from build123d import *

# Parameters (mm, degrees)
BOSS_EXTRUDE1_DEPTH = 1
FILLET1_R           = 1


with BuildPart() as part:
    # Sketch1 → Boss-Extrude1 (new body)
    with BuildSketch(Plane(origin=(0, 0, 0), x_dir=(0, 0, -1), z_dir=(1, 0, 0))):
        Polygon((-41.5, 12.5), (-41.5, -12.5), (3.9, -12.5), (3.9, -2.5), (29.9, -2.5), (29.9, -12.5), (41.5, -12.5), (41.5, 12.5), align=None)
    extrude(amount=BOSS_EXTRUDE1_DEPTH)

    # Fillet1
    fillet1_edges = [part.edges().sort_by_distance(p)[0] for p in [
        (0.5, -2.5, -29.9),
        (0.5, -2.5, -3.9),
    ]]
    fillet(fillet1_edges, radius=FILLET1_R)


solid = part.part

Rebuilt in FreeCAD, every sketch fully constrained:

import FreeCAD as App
import Part
import Sketcher

V = App.Vector
Q = App.Units.Quantity


def edges_at(feature, points):
    """Names of the edges that pass closest to the given points."""
    edges = feature.Shape.Edges
    near = lambda p: min(range(len(edges)), key=lambda i: edges[i].distToShape(Part.Vertex(*p))[0])
    return sorted({f"Edge{near(p) + 1}" for p in points})


def add_polygon(sketch, points):
    """Adds a closed chain of lines whose ends are joined by coincident constraints."""
    first, n = sketch.GeometryCount, len(points)
    for a, b in zip(points, points[1:] + points[:1]):
        sketch.addGeometry(Part.LineSegment(App.Vector(*a, 0), App.Vector(*b, 0)), False)
    for i in range(n):
        sketch.addConstraint(Sketcher.Constraint("Coincident", first + i, 2, first + (i + 1) % n, 1))

doc = App.newDocument("Part")
body = doc.addObject("PartDesign::Body", "Body")

# Sketch on YZ plane
sketch1 = body.newObject("Sketcher::SketchObject", "Sketch")
sketch1.AttachmentSupport = (doc.getObject("YZ_Plane"), [""])
sketch1.MapMode = "FlatFace"
add_polygon(sketch1, [(12, 42), (-12, 42), (-12, -4), (-2, -4), (-2, -30), (-12, -30), (-12, -42), (12, -42)])  # lines 0-7
sketch1.addConstraint(Sketcher.Constraint("Horizontal", 0))
sketch1.addConstraint(Sketcher.Constraint("Vertical", 1))
sketch1.addConstraint(Sketcher.Constraint("Horizontal", 2))
sketch1.addConstraint(Sketcher.Constraint("Vertical", 3))
sketch1.addConstraint(Sketcher.Constraint("Horizontal", 4))
sketch1.addConstraint(Sketcher.Constraint("Vertical", 5))
sketch1.addConstraint(Sketcher.Constraint("Horizontal", 6))
sketch1.addConstraint(Sketcher.Constraint("Vertical", 7))
sketch1.addConstraint(Sketcher.Constraint("Symmetric", 0, 2, 6, 2, -1, 1))
sketch1.addConstraint(Sketcher.Constraint("Vertical", 1, 2, 4, 2))
sketch1.addConstraint(Sketcher.Constraint("DistanceX", 0, 2, 0, 1, Q("25 mm")))
sketch1.addConstraint(Sketcher.Constraint("DistanceX", 2, 1, 2, 2, Q("10 mm")))
sketch1.addConstraint(Sketcher.Constraint("DistanceY", 3, 2, 3, 1, Q("26 mm")))
sketch1.addConstraint(Sketcher.Constraint("DistanceY", 7, 1, 7, 2, Q("83 mm")))
sketch1.addConstraint(Sketcher.Constraint("DistanceY", 1, 2, 1, 1, Q("45.4 mm")))
pad1 = body.newObject("PartDesign::Pad", "Pad")
pad1.Profile = sketch1
pad1.Length = 1
doc.recompute()

fillet = body.newObject("PartDesign::Fillet", "Fillet")
fillet.Base = (pad1, edges_at(pad1, [(0.5, -2.5, -29.9), (0.5, -2.5, -3.9)]))
fillet.Radius = 1

doc.recompute()
